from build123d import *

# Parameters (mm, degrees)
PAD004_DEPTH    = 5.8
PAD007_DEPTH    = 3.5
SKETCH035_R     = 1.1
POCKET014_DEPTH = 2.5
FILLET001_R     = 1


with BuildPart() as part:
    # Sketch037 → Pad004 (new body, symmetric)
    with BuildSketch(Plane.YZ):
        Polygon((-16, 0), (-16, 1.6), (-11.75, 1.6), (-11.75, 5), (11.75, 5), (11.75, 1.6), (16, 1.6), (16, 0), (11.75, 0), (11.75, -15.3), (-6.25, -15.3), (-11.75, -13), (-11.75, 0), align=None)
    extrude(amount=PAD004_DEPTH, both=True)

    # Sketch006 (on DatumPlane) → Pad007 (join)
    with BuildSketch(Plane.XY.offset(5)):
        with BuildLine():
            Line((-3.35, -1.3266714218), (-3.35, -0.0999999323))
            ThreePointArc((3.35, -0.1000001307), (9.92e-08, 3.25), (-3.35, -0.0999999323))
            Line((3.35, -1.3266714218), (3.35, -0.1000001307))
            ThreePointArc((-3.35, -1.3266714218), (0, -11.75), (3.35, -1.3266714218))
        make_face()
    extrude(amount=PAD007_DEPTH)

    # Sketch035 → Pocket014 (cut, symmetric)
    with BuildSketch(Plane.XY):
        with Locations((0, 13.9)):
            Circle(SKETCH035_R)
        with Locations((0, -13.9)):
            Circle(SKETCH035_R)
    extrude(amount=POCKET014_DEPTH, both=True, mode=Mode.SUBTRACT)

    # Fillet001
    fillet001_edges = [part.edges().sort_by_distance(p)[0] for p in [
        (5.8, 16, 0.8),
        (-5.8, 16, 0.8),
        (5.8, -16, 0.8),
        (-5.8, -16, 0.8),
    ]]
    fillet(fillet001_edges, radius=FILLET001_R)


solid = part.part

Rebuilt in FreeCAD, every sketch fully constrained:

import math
import FreeCAD as App
import Part
import Sketcher
from FreeCAD import Vector


def edges_at(feature, points):
    """Names of the edges that pass closest to the given points."""
    edges = feature.Shape.Edges
    near = lambda p: min(range(len(edges)), key=lambda i: edges[i].distToShape(Part.Vertex(*p))[0])
    return sorted({f"Edge{near(p) + 1}" for p in points})

doc = App.newDocument("Part")
body = doc.addObject("PartDesign::Body", "Body")

sketch1 = body.newObject("Sketcher::SketchObject", "Sketch")
sketch1.AttachmentSupport = (doc.getObject("YZ_Plane"), [""])
sketch1.MapMode = "FlatFace"
sketch1.addGeometry([
    Part.LineSegment(Vector(-16, 1.6, 0), Vector(-16, 0, 0)),
    Part.LineSegment(Vector(-16, 0, 0), Vector(-11.8, 0, 0)),
    Part.LineSegment(Vector(-11.8, 0, 0), Vector(-11.8, -13, 0)),
    Part.LineSegment(Vector(-11.8, -13, 0), Vector(-6.2, -15.3, 0)),
    Part.LineSegment(Vector(-6.2, -15.3, 0), Vector(11.8, -15.3, 0)),
    Part.LineSegment(Vector(11.8, -15.3, 0), Vector(11.8, 0, 0)),
    Part.LineSegment(Vector(11.8, 0, 0), Vector(16, 0, 0)),
    Part.LineSegment(Vector(16, 0, 0), Vector(16, 1.6, 0)),
    Part.LineSegment(Vector(16, 1.6, 0), Vector(11.8, 1.6, 0)),
    Part.LineSegment(Vector(11.8, 1.6, 0), Vector(11.8, 5, 0)),
    Part.LineSegment(Vector(11.8, 5, 0), Vector(-11.8, 5, 0)),
    Part.LineSegment(Vector(-11.8, 5, 0), Vector(-11.8, 1.6, 0)),
    Part.LineSegment(Vector(-11.8, 1.6, 0), Vector(-16, 1.6, 0)),
], False)
sketch1.addConstraint([
    Sketcher.Constraint("Coincident", 0, 2, 1, 1),
    Sketcher.Constraint("Coincident", 1, 2, 2, 1),
    Sketcher.Constraint("Coincident", 2, 2, 3, 1),
    Sketcher.Constraint("Coincident", 3, 2, 4, 1),
    Sketcher.Constraint("Coincident", 4, 2, 5, 1),
    Sketcher.Constraint("Coincident", 5, 2, 6, 1),
    Sketcher.Constraint("Coincident", 6, 2, 7, 1),
    Sketcher.Constraint("Coincident", 7, 2, 8, 1),
    Sketcher.Constraint("Coincident", 8, 2, 9, 1),
    Sketcher.Constraint("Coincident", 9, 2, 10, 1),
    Sketcher.Constraint("Coincident", 10, 2, 11, 1),
    Sketcher.Constraint("Coincident", 11, 2, 12, 1),
    Sketcher.Constraint("Coincident", 12, 2, 0, 1),
    Sketcher.Constraint("Vertical", 0),
    Sketcher.Constraint("Horizontal", 1),
    Sketcher.Constraint("Vertical", 2),
    Sketcher.Constraint("Horizontal", 4),
    Sketcher.Constraint("Vertical", 5),
    Sketcher.Constraint("Horizontal", 6),
    Sketcher.Constraint("Vertical", 7),
    Sketcher.Constraint("Horizontal", 8),
    Sketcher.Constraint("Vertical", 9),
    Sketcher.Constraint("Horizontal", 10),
    Sketcher.Constraint("Vertical", 11),
    Sketcher.Constraint("Horizontal", 12),
    Sketcher.Constraint("Symmetric", 1, 2, 5, 2, -1, 1),
    Sketcher.Constraint("Symmetric", 0, 2, 6, 2, -2),
    Sketcher.Constraint("Symmetric", 8, 2, 11, 2, -2),
    Sketcher.Constraint("Vertical", 5, 2, 8, 2),
    Sketcher.Constraint("DistanceX", 4, 1, 4, 2, 18.0),
    Sketcher.Constraint("DistanceY", 2, 2, 2, 1, 13.0),
    Sketcher.Constraint("DistanceX", 10, 2, 10, 1, 23.5),
    Sketcher.Constraint("DistanceY", 0, 2, 0, 1, 1.6),
    Sketcher.Constraint("DistanceY", 5, 1, 5, 2, 15.3),
    Sketcher.Constraint("DistanceY", 9, 1, 9, 2, 3.4),
    Sketcher.Constraint("DistanceX", 0, 2, -1, 1, 16.0),
])
pad1 = body.newObject("PartDesign::Pad", "Pad")
pad1.Profile = sketch1
pad1.Length = 11.6
pad1.Midplane = True

sketch2 = body.newObject("Sketcher::SketchObject", "Sketch001")
sketch2.AttachmentSupport = (doc.getObject("XY_Plane"), [""])
sketch2.MapMode = "FlatFace"
sketch2.AttachmentOffset = App.Placement(Vector(0, 0, 5), App.Rotation())
sketch2.addGeometry([
    Part.LineSegment(Vector(-3.4, -0.1, 0), Vector(-3.4, -1.3, 0)),
    Part.ArcOfCircle(Part.Circle(Vector(0, -6, 0), Vector(0, 0, 1), 5.8), math.radians(126), math.radians(414)),
    Part.LineSegment(Vector(3.4, -1.3, 0), Vector(3.4, -0.1, 0)),
    Part.ArcOfCircle(Part.Circle(Vector(0, -0.1, 0), Vector(0, 0, 1), 3.4), math.radians(0), math.radians(180)),
], False)
sketch2.addConstraint([
    Sketcher.Constraint("Coincident", 0, 2, 1, 1),
    Sketcher.Constraint("Coincident", 1, 2, 2, 1),
    Sketcher.Constraint("Tangent", 2, 2, 3, 1),
    Sketcher.Constraint("Tangent", 3, 2, 0, 1),
    Sketcher.Constraint("Vertical", 0),
    Sketcher.Constraint("Vertical", 2),
    Sketcher.Constraint("Symmetric", 0, 2, 1, 2, -2),
    Sketcher.Constraint("Radius", 1, 5.75),
    Sketcher.Constraint("Radius", 3, 3.35),
    Sketcher.Constraint("DistanceY", 1, 3, -1, 1, 6.0),
    Sketcher.Constraint("DistanceY", 3, 3, -1, 1, 0.1),
])
pad2 = body.newObject("PartDesign::Pad", "Pad001")
pad2.Profile = sketch2
pad2.Length = 3.5

sketch3 = body.newObject("Sketcher::SketchObject", "Sketch002")
sketch3.AttachmentSupport = (doc.getObject("XY_Plane"), [""])
sketch3.MapMode = "FlatFace"
sketch3.addGeometry([
    Part.Circle(Vector(0, 13.9, 0), Vector(0, 0, 1), 1.1),
    Part.Circle(Vector(0, -13.9, 0), Vector(0, 0, 1), 1.1),
], False)
sketch3.addConstraint([
    Sketcher.Constraint("Equal", 0, 1),
    Sketcher.Constraint("Symmetric", 0, 3, 1, 3, -1, 1),
    Sketcher.Constraint("PointOnObject", 0, 3, -2),
    Sketcher.Constraint("Diameter", 0, 2.2),
    Sketcher.Constraint("DistanceY", -1, 1, 0, 3, 13.9),
])
pocket1 = body.newObject("PartDesign::Pocket", "Pocket")
pocket1.Profile = sketch3
pocket1.Length = 5
pocket1.Midplane = True
doc.recompute()

fillet = body.newObject("PartDesign::Fillet", "Fillet")
fillet.Base = (pocket1, edges_at(pocket1, [
    (5.8, 16, 0.8),
    (-5.8, 16, 0.8),
    (5.8, -16, 0.8),
    (-5.8, -16, 0.8),
]))
fillet.Radius = 1

doc.recompute()
